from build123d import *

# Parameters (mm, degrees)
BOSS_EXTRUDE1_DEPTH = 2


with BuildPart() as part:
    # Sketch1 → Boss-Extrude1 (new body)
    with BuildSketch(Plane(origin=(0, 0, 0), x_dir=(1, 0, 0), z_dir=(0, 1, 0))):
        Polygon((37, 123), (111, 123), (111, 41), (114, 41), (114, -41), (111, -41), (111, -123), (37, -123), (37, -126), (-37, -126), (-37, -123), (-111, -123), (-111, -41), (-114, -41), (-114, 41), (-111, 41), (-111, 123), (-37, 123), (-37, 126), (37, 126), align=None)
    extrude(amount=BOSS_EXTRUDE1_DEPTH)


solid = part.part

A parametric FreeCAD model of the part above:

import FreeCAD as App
import Part
import Sketcher

V = App.Vector
Q = App.Units.Quantity


def add_polygon(sketch, points):
    """Adds a closed chain of lines whose ends are joined by coincident constraints."""
    first, n = sketch.GeometryCount, len(points)
    for a, b in zip(points, points[1:] + points[:1]):
        sketch.addGeometry(Part.LineSegment(App.Vector(*a, 0), App.Vector(*b, 0)), False)
    for i in range(n):
        sketch.addConstraint(Sketcher.Constraint("Coincident", first + i, 2, first + (i + 1) % n, 1))

doc = App.newDocument("Part")
body = doc.addObject("PartDesign::Body", "Body")

# Sketch on XZ plane
sketch1 = body.newObject("Sketcher::SketchObject", "Sketch")
sketch1.AttachmentSupport = (doc.getObject("XZ_Plane"), [""])
sketch1.MapMode = "FlatFace"
add_polygon(sketch1, [(111, -123), (37, -123), (37, -126), (-37, -126), (-37, -123), (-111, -123), (-111, -41), (-114, -41), (-114, 41), (-111, 41), (-111, 123), (-37, 123), (-37, 126), (37, 126), (37, 123), (111, 123), (111, 41), (114, 41), (114, -41), (111, -41)])  # lines 0-19
sketch1.addConstraint([
    Sketcher.Constraint("Horizontal", 0),
    Sketcher.Constraint("Vertical", 1),
    Sketcher.Constraint("Horizontal", 2),
    Sketcher.Constraint("Vertical", 3),
    Sketcher.Constraint("Horizontal", 4),
    Sketcher.Constraint("Vertical", 5),
    Sketcher.Constraint("Horizontal", 6),
    Sketcher.Constraint("Vertical", 7),
    Sketcher.Constraint("Horizontal", 8),
    Sketcher.Constraint("Vertical", 9),
    Sketcher.Constraint("Horizontal", 10),
    Sketcher.Constraint("Vertical", 11),
    Sketcher.Constraint("Horizontal", 12),
    Sketcher.Constraint("Vertical", 13),
    Sketcher.Constraint("Horizontal", 14),
    Sketcher.Constraint("Vertical", 15),
    Sketcher.Constraint("Horizontal", 16),
    Sketcher.Constraint("Vertical", 17),
    Sketcher.Constraint("Horizontal", 18),
    Sketcher.Constraint("Vertical", 19),
    Sketcher.Constraint("Symmetric", 0, 2, 10, 2, -1, 1),
    Sketcher.Constraint("Symmetric", 2, 2, 12, 2, -1, 1),
    Sketcher.Constraint("Symmetric", 4, 2, 14, 2, -1, 1),
    Sketcher.Constraint("Symmetric", 6, 2, 16, 2, -1, 1),
    Sketcher.Constraint("Symmetric", 8, 2, 18, 2, -1, 1),
    Sketcher.Constraint("Symmetric", 0, 2, 3, 2, -2),
    Sketcher.Constraint("Symmetric", 8, 2, 15, 2, -2),
    Sketcher.Constraint("Equal", 0, 2),
    Sketcher.Constraint("Equal", 18, 1),
    Sketcher.Constraint("Equal", 5, 7),
    Sketcher.Constraint("DistanceX", 0, 2, 0, 1, Q("74 mm")),
    Sketcher.Constraint("DistanceX", 6, 2, 6, 1, Q("3 mm")),
    Sketcher.Constraint("DistanceY", 5, 1, 5, 2, Q("82 mm")),
])
pad1 = body.newObject("PartDesign::Pad", "Pad")
pad1.Profile = sketch1
pad1.Length = 2
pad1.Reversed = True

doc.recompute()
